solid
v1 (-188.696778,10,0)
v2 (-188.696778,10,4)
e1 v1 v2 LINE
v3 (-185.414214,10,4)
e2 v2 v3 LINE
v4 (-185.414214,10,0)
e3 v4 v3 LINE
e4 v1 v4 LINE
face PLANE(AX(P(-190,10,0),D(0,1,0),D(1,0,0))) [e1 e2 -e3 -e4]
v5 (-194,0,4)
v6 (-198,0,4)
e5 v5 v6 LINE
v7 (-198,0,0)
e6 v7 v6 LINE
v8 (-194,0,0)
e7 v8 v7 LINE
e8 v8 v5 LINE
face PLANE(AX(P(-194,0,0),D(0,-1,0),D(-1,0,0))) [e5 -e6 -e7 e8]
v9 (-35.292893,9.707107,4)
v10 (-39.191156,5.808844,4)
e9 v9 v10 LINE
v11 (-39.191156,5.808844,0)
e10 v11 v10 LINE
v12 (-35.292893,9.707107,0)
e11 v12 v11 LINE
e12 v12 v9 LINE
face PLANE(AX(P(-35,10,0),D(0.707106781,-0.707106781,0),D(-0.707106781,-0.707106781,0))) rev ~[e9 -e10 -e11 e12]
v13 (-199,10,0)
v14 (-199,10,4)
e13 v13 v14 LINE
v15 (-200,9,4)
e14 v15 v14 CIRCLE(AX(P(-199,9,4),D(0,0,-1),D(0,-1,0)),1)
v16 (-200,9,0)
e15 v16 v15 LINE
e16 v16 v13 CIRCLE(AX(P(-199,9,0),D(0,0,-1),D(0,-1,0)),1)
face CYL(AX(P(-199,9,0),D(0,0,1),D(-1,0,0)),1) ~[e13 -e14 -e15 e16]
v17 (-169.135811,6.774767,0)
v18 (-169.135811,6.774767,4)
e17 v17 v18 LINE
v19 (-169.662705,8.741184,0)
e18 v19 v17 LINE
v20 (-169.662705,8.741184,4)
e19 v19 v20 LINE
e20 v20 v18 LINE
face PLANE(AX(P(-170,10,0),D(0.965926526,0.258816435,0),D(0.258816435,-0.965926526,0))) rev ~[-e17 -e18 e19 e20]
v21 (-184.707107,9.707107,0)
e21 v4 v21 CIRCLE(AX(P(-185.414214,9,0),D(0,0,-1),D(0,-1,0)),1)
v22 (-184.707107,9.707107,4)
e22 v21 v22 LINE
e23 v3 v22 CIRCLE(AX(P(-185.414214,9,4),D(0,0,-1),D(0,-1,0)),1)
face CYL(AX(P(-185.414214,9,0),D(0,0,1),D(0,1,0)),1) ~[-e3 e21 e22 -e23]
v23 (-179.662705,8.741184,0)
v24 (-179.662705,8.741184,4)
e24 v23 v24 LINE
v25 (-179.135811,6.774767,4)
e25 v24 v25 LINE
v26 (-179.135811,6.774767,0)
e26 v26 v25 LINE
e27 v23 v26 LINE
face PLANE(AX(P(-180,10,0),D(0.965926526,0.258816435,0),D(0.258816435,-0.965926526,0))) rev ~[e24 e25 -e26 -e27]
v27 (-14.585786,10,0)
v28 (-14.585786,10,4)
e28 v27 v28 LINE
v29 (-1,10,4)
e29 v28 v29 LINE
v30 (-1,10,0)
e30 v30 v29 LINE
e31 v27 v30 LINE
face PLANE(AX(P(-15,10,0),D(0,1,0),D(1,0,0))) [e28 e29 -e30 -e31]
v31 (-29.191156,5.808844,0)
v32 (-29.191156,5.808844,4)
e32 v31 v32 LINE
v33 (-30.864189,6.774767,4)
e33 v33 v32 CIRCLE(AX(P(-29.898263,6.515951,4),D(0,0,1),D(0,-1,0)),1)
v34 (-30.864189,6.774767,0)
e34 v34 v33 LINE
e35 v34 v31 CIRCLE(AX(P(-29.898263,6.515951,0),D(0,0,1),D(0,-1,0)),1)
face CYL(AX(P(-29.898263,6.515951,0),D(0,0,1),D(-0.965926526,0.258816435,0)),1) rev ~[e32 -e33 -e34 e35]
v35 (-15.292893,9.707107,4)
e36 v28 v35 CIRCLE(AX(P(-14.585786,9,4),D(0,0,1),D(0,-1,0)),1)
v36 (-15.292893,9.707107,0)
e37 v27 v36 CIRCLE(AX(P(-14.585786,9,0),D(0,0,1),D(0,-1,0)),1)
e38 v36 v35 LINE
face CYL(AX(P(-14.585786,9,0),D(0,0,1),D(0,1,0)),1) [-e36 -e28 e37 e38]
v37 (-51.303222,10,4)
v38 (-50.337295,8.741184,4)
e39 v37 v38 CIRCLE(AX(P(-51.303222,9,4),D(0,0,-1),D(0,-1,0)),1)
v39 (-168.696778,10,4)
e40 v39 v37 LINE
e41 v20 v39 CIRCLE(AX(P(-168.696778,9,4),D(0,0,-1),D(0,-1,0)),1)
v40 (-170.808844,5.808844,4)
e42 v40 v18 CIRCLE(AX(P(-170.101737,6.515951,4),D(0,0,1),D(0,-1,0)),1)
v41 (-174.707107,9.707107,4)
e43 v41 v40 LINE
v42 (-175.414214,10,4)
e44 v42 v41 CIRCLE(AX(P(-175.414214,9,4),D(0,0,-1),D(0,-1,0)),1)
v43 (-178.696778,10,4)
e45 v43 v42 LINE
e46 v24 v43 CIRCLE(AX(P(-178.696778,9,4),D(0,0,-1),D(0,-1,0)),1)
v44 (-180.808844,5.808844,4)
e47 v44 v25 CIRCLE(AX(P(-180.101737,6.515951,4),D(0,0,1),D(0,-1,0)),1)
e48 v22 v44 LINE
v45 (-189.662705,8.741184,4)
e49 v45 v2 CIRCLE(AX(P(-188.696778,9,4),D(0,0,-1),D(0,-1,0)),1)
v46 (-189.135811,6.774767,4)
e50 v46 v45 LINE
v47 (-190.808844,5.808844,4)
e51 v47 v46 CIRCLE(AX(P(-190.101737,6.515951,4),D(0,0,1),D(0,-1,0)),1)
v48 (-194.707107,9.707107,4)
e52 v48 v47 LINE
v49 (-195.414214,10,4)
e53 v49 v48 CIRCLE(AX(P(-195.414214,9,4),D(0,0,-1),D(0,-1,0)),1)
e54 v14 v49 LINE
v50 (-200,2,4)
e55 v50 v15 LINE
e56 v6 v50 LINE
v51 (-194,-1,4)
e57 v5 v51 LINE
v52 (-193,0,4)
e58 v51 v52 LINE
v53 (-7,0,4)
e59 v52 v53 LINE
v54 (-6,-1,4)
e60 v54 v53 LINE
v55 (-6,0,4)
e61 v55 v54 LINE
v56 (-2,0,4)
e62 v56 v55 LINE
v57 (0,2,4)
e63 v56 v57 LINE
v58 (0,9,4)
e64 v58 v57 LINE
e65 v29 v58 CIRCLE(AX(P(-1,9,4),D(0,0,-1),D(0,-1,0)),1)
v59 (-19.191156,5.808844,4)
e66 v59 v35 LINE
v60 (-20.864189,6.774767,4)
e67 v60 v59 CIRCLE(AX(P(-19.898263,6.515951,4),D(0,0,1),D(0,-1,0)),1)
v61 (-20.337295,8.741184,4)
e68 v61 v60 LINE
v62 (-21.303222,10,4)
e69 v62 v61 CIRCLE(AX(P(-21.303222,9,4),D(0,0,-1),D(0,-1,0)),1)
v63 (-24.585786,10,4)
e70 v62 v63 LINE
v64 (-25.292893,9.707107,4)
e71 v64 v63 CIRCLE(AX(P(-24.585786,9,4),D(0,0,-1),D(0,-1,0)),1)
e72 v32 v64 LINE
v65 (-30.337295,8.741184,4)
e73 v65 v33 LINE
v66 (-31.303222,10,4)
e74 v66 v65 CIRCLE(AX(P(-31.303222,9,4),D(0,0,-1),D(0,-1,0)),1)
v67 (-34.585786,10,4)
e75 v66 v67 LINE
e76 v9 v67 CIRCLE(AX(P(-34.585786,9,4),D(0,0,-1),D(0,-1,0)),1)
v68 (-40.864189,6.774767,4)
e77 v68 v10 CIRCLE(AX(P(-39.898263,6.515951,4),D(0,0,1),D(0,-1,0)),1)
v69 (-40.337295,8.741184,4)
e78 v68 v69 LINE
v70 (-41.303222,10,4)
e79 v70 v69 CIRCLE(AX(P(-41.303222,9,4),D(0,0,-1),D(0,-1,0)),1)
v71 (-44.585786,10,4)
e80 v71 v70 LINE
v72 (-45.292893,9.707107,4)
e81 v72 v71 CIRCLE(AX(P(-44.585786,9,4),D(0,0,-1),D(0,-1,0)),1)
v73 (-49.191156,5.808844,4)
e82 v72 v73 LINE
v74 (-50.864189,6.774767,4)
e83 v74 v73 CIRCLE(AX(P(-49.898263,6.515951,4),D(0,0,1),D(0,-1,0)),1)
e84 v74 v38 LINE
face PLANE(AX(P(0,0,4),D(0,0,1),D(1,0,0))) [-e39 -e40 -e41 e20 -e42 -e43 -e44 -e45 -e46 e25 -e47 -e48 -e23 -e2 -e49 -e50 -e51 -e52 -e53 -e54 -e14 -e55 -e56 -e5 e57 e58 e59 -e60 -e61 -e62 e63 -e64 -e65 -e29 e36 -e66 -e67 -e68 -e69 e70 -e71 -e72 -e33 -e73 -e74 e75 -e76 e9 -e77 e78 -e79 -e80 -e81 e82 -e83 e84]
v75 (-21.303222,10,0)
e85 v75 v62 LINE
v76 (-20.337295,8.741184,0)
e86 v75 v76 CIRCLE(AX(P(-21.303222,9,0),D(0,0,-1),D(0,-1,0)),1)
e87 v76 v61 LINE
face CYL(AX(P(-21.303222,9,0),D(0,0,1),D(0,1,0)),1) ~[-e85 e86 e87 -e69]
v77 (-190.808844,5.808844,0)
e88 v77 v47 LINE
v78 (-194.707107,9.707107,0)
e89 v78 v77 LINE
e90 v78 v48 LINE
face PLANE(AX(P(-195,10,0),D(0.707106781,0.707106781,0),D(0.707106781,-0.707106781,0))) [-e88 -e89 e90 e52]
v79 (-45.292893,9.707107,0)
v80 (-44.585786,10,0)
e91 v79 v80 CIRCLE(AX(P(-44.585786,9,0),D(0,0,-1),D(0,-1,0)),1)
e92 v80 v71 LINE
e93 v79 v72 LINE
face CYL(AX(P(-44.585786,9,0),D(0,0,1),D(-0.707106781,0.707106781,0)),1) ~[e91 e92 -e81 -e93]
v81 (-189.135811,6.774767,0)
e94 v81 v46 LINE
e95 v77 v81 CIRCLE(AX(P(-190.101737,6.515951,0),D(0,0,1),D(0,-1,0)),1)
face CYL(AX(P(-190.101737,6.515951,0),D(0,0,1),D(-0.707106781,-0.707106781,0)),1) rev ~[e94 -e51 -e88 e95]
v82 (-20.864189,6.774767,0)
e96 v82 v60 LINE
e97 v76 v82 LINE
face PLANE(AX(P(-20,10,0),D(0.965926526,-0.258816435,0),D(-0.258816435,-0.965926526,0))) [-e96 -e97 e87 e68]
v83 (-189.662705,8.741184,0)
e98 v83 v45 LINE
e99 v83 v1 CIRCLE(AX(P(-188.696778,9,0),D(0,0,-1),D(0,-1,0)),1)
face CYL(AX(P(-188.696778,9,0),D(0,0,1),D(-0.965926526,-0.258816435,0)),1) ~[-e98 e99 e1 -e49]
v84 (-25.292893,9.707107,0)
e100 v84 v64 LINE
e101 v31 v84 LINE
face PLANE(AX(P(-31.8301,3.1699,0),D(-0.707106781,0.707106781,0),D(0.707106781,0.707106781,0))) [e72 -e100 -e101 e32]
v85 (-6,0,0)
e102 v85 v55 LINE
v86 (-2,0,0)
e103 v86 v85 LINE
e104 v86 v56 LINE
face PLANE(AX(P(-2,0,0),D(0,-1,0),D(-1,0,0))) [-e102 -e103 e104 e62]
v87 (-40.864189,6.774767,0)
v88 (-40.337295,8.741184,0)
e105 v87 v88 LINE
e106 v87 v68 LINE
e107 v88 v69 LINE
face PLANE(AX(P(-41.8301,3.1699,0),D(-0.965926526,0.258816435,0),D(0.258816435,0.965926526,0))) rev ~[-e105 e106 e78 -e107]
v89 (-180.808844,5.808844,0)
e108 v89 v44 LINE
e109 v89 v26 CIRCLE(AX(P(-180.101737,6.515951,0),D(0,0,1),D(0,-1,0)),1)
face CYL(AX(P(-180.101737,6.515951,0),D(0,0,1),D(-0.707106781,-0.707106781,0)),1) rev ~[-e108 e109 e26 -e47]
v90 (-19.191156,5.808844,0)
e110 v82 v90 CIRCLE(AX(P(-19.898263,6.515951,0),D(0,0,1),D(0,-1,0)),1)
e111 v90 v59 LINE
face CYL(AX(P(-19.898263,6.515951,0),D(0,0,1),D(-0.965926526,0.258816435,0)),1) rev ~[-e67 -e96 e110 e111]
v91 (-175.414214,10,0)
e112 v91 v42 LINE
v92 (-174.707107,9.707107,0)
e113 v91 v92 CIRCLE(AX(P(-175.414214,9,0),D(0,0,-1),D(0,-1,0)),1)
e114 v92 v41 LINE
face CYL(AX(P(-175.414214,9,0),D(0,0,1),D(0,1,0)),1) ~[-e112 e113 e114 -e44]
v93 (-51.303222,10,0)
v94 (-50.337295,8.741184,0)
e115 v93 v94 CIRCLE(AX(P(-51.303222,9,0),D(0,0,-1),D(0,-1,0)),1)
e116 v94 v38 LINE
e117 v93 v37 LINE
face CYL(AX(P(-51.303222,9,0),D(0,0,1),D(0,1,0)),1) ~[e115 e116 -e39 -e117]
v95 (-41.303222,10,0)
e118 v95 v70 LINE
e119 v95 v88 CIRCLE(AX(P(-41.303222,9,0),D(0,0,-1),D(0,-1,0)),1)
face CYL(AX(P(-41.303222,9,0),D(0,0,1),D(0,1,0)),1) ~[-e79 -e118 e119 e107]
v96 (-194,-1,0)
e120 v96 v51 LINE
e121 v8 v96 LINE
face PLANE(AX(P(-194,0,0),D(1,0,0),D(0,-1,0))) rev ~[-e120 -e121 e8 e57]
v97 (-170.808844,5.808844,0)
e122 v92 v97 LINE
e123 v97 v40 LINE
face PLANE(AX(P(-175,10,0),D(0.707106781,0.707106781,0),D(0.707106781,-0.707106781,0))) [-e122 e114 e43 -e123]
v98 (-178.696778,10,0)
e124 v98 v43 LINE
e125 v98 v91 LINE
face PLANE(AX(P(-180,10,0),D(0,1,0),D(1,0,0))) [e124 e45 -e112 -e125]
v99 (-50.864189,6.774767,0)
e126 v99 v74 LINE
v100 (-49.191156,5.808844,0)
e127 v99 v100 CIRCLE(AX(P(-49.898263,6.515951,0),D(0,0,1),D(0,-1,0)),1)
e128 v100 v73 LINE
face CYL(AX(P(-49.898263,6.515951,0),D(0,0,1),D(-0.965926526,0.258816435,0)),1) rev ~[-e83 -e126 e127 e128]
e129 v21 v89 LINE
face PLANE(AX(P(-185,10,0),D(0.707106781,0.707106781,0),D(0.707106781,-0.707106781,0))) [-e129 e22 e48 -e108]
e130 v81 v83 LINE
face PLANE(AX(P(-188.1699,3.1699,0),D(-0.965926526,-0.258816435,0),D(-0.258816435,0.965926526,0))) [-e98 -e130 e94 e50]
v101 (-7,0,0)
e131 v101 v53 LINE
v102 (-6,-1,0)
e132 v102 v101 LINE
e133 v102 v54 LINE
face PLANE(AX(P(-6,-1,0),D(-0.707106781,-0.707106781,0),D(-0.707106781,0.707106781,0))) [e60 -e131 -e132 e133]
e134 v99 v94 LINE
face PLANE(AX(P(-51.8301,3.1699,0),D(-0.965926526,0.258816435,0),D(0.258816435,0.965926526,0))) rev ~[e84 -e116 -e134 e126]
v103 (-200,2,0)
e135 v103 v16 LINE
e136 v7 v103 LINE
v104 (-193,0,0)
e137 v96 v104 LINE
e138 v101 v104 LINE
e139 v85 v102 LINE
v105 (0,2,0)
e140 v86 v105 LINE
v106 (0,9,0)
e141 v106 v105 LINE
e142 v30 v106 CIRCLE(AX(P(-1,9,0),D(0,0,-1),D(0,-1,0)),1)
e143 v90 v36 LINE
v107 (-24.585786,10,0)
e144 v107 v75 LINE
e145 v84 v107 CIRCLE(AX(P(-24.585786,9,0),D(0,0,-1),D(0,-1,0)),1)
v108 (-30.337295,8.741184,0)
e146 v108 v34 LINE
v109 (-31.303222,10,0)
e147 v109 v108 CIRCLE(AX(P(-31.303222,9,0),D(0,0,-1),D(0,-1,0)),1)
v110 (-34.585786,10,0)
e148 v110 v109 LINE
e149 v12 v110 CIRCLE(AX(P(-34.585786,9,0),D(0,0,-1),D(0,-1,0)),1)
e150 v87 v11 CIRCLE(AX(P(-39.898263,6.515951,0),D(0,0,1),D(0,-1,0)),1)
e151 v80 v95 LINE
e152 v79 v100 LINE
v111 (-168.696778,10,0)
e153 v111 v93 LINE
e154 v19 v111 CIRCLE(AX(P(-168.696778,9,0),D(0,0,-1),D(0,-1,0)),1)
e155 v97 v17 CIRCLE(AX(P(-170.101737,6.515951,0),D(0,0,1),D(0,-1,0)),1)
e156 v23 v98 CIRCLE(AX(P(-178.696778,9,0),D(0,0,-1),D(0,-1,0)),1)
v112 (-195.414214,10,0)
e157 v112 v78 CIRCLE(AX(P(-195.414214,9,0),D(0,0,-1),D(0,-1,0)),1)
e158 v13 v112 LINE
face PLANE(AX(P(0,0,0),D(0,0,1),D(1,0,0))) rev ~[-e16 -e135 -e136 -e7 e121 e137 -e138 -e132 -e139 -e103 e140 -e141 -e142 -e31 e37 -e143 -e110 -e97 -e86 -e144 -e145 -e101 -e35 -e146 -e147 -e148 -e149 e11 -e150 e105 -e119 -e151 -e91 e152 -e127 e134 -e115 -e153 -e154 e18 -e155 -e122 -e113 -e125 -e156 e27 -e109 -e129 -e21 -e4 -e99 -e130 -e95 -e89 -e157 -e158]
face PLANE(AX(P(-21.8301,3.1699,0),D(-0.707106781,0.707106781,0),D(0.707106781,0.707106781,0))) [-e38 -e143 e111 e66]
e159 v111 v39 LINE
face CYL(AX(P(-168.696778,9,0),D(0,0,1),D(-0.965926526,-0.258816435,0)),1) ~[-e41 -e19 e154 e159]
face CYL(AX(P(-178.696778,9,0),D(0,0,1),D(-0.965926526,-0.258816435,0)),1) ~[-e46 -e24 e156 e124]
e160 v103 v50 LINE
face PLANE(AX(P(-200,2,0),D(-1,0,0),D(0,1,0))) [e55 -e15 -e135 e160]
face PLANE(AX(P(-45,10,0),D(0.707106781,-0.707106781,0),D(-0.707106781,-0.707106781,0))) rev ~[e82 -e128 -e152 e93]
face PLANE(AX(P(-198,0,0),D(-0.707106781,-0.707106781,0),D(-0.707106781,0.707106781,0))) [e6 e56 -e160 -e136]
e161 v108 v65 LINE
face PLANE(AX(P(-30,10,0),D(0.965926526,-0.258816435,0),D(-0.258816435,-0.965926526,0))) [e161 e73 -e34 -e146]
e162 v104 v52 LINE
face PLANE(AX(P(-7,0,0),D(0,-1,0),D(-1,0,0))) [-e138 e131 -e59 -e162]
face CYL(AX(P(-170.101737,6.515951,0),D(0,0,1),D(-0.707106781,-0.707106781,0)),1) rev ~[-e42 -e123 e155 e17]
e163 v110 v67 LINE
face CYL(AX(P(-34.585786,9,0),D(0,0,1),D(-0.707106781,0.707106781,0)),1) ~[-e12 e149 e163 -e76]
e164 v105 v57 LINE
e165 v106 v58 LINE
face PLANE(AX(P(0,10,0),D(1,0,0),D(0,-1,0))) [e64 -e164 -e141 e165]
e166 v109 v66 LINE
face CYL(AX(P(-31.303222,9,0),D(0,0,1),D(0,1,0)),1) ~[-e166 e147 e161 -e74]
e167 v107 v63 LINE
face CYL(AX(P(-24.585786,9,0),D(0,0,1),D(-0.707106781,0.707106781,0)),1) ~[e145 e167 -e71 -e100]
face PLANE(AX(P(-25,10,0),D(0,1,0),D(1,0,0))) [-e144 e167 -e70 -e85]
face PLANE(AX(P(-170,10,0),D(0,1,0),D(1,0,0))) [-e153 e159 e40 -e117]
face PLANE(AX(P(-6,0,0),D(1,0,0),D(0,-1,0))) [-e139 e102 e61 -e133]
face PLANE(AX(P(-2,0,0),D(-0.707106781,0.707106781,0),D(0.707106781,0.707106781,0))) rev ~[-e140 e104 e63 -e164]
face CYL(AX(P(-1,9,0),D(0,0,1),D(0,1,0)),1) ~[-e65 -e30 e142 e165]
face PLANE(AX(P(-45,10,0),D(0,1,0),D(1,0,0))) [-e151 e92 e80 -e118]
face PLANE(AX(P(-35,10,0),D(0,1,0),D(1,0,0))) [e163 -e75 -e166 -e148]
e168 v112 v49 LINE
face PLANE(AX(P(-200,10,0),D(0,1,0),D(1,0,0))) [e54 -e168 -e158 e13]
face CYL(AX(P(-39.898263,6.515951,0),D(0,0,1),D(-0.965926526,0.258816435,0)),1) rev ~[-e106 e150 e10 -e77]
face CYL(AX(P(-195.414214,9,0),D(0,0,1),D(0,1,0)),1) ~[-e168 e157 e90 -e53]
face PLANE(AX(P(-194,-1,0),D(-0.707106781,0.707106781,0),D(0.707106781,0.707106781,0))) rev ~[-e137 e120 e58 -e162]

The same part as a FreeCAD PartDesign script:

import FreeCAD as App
import Part
import Sketcher
Q = App.Units.Quantity


def edges_at(feature, points):
    """Names of the edges that pass closest to the given points."""
    edges = feature.Shape.Edges
    near = lambda p: min(range(len(edges)), key=lambda i: edges[i].distToShape(Part.Vertex(*p))[0])
    return sorted({f"Edge{near(p) + 1}" for p in points})


def add_polygon(sketch, points):
    """Adds a closed chain of lines whose ends are joined by coincident constraints."""
    first, n = sketch.GeometryCount, len(points)
    for a, b in zip(points, points[1:] + points[:1]):
        sketch.addGeometry(Part.LineSegment(App.Vector(*a, 0), App.Vector(*b, 0)), False)
    for i in range(n):
        sketch.addConstraint(Sketcher.Constraint("Coincident", first + i, 2, first + (i + 1) % n, 1))

doc = App.newDocument("Part")
body = doc.addObject("PartDesign::Body", "Body")

# Sketch on XY plane
sketch1 = doc.addObject("Sketcher::SketchObject", "Sketch")
body.addObject(sketch1)
sketch1.AttachmentSupport = (doc.XY_Plane, [""])
sketch1.MapMode = "FlatFace"
add_polygon(sketch1, [(-2, 0), (0, 2), (0, 10), (-15, 10), (-21.8, 3.2), (-20, 10), (-25, 10), (-31.8, 3.2), (-30, 10), (-35, 10), (-41.8, 3.2), (-40, 10), (-45, 10), (-51.8, 3.2), (-50, 10), (-170, 10), (-168.2, 3.2), (-175, 10), (-180, 10), (-178.2, 3.2), (-185, 10), (-190, 10), (-188.2, 3.2), (-195, 10), (-200, 10), (-200, 2), (-198, 0), (-194, 0), (-194, -1), (-193, 0), (-7, 0), (-6, -1), (-6, 0)])  # lines 0-32
sketch1.addConstraint(Sketcher.Constraint("Vertical", 1))
sketch1.addConstraint(Sketcher.Constraint("Horizontal", 2))
sketch1.addConstraint(Sketcher.Constraint("Horizontal", 5))
sketch1.addConstraint(Sketcher.Constraint("Horizontal", 8))
sketch1.addConstraint(Sketcher.Constraint("Horizontal", 11))
sketch1.addConstraint(Sketcher.Constraint("Horizontal", 14))
sketch1.addConstraint(Sketcher.Constraint("Horizontal", 17))
sketch1.addConstraint(Sketcher.Constraint("Horizontal", 20))
sketch1.addConstraint(Sketcher.Constraint("Horizontal", 23))
sketch1.addConstraint(Sketcher.Constraint("Vertical", 24))
sketch1.addConstraint(Sketcher.Constraint("Horizontal", 26))
sketch1.addConstraint(Sketcher.Constraint("Vertical", 27))
sketch1.addConstraint(Sketcher.Constraint("Horizontal", 29))
sketch1.addConstraint(Sketcher.Constraint("Vertical", 31))
sketch1.addConstraint(Sketcher.Constraint("Horizontal", 32))
sketch1.addConstraint(Sketcher.Constraint("PointOnObject", 0, 2, -2))
sketch1.addConstraint(Sketcher.Constraint("PointOnObject", 25, 2, -1))
sketch1.addConstraint(Sketcher.Constraint("PointOnObject", 28, 2, -1))
sketch1.addConstraint(Sketcher.Constraint("PointOnObject", 31, 2, -1))
sketch1.addConstraint(Sketcher.Constraint("Parallel", 0, 3))
sketch1.addConstraint(Sketcher.Constraint("Parallel", 3, 6))
sketch1.addConstraint(Sketcher.Constraint("Parallel", 4, 7))
sketch1.addConstraint(Sketcher.Constraint("Parallel", 6, 9))
sketch1.addConstraint(Sketcher.Constraint("Parallel", 7, 10))
sketch1.addConstraint(Sketcher.Constraint("Parallel", 9, 12))
sketch1.addConstraint(Sketcher.Constraint("Parallel", 10, 13))
sketch1.addConstraint(Sketcher.Constraint("Perpendicular", 12, 16))
sketch1.addConstraint(Sketcher.Constraint("Parallel", 15, 18))
sketch1.addConstraint(Sketcher.Constraint("Parallel", 16, 19))
sketch1.addConstraint(Sketcher.Constraint("Parallel", 18, 21))
sketch1.addConstraint(Sketcher.Constraint("Parallel", 19, 22))
sketch1.addConstraint(Sketcher.Constraint("Parallel", 22, 25))
sketch1.addConstraint(Sketcher.Constraint("Perpendicular", 25, 28))
sketch1.addConstraint(Sketcher.Constraint("Perpendicular", 28, 30))
sketch1.addConstraint(Sketcher.Constraint("Horizontal", 2, 2, 4, 2))
sketch1.addConstraint(Sketcher.Constraint("Horizontal", 3, 2, 6, 2))
sketch1.addConstraint(Sketcher.Constraint("Horizontal", 5, 2, 7, 2))
sketch1.addConstraint(Sketcher.Constraint("Horizontal", 6, 2, 9, 2))
sketch1.addConstraint(Sketcher.Constraint("Horizontal", 8, 2, 10, 2))
sketch1.addConstraint(Sketcher.Constraint("Horizontal", 9, 2, 12, 2))
sketch1.addConstraint(Sketcher.Constraint("Horizontal", 11, 2, 13, 2))
sketch1.addConstraint(Sketcher.Constraint("Horizontal", 12, 2, 15, 2))
sketch1.addConstraint(Sketcher.Constraint("Horizontal", 14, 2, 16, 2))
sketch1.addConstraint(Sketcher.Constraint("Horizontal", 15, 2, 18, 2))
sketch1.addConstraint(Sketcher.Constraint("Horizontal", 17, 2, 19, 2))
sketch1.addConstraint(Sketcher.Constraint("Horizontal", 18, 2, 21, 2))
sketch1.addConstraint(Sketcher.Constraint("Horizontal", 20, 2, 22, 2))
sketch1.addConstraint(Sketcher.Constraint("Horizontal", 0, 2, 24, 2))
sketch1.addConstraint(Sketcher.Constraint("Horizontal", 27, 2, 30, 2))
sketch1.addConstraint(Sketcher.Constraint("Equal", 5, 8))
sketch1.addConstraint(Sketcher.Constraint("Equal", 8, 11))
sketch1.addConstraint(Sketcher.Constraint("Equal", 11, 17))
sketch1.addConstraint(Sketcher.Constraint("Equal", 17, 20))
sketch1.addConstraint(Sketcher.Constraint("Equal", 20, 23))
sketch1.addConstraint(Sketcher.Constraint("Equal", 26, 32))
sketch1.addConstraint(Sketcher.Constraint("Equal", 13, 15))
sketch1.addConstraint(Sketcher.Constraint("Equal", 12, 16))
sketch1.addConstraint(Sketcher.Constraint("DistanceX", 5, 2, 5, 1, Q("5 mm")))
sketch1.addConstraint(Sketcher.Constraint("DistanceX", 26, 1, 26, 2, Q("4 mm")))
sketch1.addConstraint(Sketcher.Constraint("DistanceY", 27, 2, 27, 1, Q("1 mm")))
sketch1.addConstraint(Sketcher.Constraint("Angle", 4, Q("75.0002 deg")))
sketch1.addConstraint(Sketcher.Constraint("DistanceY", -1, 1, 0, 2, Q("2 mm")))
sketch1.addConstraint(Sketcher.Constraint("DistanceY", -1, 1, 1, 2, Q("10 mm")))
sketch1.addConstraint(Sketcher.Constraint("DistanceX", 11, 2, -1, 1, Q("45 mm")))
sketch1.addConstraint(Sketcher.Constraint("DistanceX", 23, 2, -1, 1, Q("200 mm")))
sketch1.addConstraint(Sketcher.Constraint("DistanceX", 4, 2, 2, 2, Q("5 mm")))
pad1 = doc.addObject("PartDesign::Pad", "Pad")
body.addObject(pad1)
pad1.Profile = sketch1
pad1.Length = 4
doc.recompute()

fillet = doc.addObject("PartDesign::Fillet", "Fillet")
body.addObject(fillet)
fillet.Base = (pad1, edges_at(pad1, [
    (-190, 10, 2),
    (-188.17, 3.17, 2),
    (-195, 10, 2),
    (-185, 10, 2),
    (-178.17, 3.17, 2),
    (-180, 10, 2),
    (-168.17, 3.17, 2),
    (-175, 10, 2),
    (-170, 10, 2),
    (-50, 10, 2),
    (-51.83, 3.17, 2),
    (-41.83, 3.17, 2),
    (-31.83, 3.17, 2),
    (-30, 10, 2),
    (-40, 10, 2),
    (-45, 10, 2),
    (-35, 10, 2),
    (-25, 10, 2),
    (-20, 10, 2),
    (-21.83, 3.17, 2),
    (-15, 10, 2),
]))
fillet.Radius = 1
doc.recompute()

fillet2 = doc.addObject("PartDesign::Fillet", "Fillet001")
body.addObject(fillet2)
fillet2.Base = (fillet, edges_at(fillet, [(0, 10, 2), (-200, 10, 2)]))
fillet2.Radius = 1

doc.recompute()
